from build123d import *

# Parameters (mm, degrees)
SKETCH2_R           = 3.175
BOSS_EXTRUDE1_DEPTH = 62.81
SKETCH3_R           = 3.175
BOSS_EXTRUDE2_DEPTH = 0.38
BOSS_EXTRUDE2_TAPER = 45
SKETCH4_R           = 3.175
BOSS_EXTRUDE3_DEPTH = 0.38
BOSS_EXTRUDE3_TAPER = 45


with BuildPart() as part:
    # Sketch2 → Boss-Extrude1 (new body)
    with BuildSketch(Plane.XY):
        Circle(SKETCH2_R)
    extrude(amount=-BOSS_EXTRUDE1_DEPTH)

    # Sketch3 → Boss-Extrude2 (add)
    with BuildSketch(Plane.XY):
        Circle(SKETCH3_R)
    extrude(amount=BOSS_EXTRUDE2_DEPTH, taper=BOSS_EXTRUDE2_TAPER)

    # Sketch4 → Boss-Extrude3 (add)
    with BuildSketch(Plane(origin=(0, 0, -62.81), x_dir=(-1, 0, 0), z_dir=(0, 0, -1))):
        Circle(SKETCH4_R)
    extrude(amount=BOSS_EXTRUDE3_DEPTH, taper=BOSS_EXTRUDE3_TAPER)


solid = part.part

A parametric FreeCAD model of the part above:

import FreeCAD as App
import Part
import Sketcher

V = App.Vector
Q = App.Units.Quantity

doc = App.newDocument("Part")
body = doc.addObject("PartDesign::Body", "Body")

# Sketch on XY plane
sketch1 = body.newObject("Sketcher::SketchObject", "Sketch")
sketch1.AttachmentSupport = (doc.getObject("XY_Plane"), [""])
sketch1.MapMode = "FlatFace"
sketch1.addGeometry(Part.Circle(V(0, 0, 0), V(0, 0, 1), 3.2), False)
sketch1.addConstraint([
    Sketcher.Constraint("Coincident", 0, 3, -1, 1),
    Sketcher.Constraint("Diameter", 0, Q("0.25 in")),
])
pad1 = body.newObject("PartDesign::Pad", "Pad")
pad1.Profile = sketch1
pad1.Length = 62.81
pad1.Reversed = True

# Sketch on XY plane
sketch2 = body.newObject("Sketcher::SketchObject", "Sketch001")
sketch2.AttachmentSupport = (doc.getObject("XY_Plane"), [""])
sketch2.MapMode = "FlatFace"
sketch2.addGeometry(Part.Circle(V(0, 0, 0), V(0, 0, 1), 3.2), False)
sketch2.addConstraint([
    Sketcher.Constraint("Coincident", 0, 3, -1, 1),
    Sketcher.Constraint("Diameter", 0, Q("0.25 in")),
])
pad2 = body.newObject("PartDesign::Pad", "Pad001")
pad2.Profile = sketch2
pad2.Length = 0.38
pad2.TaperAngle = -45

# Sketch on XY plane
sketch3 = body.newObject("Sketcher::SketchObject", "Sketch002")
sketch3.AttachmentSupport = (doc.getObject("XY_Plane"), [""])
sketch3.MapMode = "FlatFace"
sketch3.AttachmentOffset = App.Placement(V(0, 0, -62.81), App.Rotation())
sketch3.addGeometry(Part.Circle(V(0, 0, 0), V(0, 0, 1), 3.2), False)
sketch3.addConstraint([
    Sketcher.Constraint("Coincident", 0, 3, -1, 1),
    Sketcher.Constraint("Diameter", 0, Q("0.25 in")),
])
pad3 = body.newObject("PartDesign::Pad", "Pad002")
pad3.Profile = sketch3
pad3.Length = 0.38
pad3.Reversed = True
pad3.TaperAngle = -45

doc.recompute()
